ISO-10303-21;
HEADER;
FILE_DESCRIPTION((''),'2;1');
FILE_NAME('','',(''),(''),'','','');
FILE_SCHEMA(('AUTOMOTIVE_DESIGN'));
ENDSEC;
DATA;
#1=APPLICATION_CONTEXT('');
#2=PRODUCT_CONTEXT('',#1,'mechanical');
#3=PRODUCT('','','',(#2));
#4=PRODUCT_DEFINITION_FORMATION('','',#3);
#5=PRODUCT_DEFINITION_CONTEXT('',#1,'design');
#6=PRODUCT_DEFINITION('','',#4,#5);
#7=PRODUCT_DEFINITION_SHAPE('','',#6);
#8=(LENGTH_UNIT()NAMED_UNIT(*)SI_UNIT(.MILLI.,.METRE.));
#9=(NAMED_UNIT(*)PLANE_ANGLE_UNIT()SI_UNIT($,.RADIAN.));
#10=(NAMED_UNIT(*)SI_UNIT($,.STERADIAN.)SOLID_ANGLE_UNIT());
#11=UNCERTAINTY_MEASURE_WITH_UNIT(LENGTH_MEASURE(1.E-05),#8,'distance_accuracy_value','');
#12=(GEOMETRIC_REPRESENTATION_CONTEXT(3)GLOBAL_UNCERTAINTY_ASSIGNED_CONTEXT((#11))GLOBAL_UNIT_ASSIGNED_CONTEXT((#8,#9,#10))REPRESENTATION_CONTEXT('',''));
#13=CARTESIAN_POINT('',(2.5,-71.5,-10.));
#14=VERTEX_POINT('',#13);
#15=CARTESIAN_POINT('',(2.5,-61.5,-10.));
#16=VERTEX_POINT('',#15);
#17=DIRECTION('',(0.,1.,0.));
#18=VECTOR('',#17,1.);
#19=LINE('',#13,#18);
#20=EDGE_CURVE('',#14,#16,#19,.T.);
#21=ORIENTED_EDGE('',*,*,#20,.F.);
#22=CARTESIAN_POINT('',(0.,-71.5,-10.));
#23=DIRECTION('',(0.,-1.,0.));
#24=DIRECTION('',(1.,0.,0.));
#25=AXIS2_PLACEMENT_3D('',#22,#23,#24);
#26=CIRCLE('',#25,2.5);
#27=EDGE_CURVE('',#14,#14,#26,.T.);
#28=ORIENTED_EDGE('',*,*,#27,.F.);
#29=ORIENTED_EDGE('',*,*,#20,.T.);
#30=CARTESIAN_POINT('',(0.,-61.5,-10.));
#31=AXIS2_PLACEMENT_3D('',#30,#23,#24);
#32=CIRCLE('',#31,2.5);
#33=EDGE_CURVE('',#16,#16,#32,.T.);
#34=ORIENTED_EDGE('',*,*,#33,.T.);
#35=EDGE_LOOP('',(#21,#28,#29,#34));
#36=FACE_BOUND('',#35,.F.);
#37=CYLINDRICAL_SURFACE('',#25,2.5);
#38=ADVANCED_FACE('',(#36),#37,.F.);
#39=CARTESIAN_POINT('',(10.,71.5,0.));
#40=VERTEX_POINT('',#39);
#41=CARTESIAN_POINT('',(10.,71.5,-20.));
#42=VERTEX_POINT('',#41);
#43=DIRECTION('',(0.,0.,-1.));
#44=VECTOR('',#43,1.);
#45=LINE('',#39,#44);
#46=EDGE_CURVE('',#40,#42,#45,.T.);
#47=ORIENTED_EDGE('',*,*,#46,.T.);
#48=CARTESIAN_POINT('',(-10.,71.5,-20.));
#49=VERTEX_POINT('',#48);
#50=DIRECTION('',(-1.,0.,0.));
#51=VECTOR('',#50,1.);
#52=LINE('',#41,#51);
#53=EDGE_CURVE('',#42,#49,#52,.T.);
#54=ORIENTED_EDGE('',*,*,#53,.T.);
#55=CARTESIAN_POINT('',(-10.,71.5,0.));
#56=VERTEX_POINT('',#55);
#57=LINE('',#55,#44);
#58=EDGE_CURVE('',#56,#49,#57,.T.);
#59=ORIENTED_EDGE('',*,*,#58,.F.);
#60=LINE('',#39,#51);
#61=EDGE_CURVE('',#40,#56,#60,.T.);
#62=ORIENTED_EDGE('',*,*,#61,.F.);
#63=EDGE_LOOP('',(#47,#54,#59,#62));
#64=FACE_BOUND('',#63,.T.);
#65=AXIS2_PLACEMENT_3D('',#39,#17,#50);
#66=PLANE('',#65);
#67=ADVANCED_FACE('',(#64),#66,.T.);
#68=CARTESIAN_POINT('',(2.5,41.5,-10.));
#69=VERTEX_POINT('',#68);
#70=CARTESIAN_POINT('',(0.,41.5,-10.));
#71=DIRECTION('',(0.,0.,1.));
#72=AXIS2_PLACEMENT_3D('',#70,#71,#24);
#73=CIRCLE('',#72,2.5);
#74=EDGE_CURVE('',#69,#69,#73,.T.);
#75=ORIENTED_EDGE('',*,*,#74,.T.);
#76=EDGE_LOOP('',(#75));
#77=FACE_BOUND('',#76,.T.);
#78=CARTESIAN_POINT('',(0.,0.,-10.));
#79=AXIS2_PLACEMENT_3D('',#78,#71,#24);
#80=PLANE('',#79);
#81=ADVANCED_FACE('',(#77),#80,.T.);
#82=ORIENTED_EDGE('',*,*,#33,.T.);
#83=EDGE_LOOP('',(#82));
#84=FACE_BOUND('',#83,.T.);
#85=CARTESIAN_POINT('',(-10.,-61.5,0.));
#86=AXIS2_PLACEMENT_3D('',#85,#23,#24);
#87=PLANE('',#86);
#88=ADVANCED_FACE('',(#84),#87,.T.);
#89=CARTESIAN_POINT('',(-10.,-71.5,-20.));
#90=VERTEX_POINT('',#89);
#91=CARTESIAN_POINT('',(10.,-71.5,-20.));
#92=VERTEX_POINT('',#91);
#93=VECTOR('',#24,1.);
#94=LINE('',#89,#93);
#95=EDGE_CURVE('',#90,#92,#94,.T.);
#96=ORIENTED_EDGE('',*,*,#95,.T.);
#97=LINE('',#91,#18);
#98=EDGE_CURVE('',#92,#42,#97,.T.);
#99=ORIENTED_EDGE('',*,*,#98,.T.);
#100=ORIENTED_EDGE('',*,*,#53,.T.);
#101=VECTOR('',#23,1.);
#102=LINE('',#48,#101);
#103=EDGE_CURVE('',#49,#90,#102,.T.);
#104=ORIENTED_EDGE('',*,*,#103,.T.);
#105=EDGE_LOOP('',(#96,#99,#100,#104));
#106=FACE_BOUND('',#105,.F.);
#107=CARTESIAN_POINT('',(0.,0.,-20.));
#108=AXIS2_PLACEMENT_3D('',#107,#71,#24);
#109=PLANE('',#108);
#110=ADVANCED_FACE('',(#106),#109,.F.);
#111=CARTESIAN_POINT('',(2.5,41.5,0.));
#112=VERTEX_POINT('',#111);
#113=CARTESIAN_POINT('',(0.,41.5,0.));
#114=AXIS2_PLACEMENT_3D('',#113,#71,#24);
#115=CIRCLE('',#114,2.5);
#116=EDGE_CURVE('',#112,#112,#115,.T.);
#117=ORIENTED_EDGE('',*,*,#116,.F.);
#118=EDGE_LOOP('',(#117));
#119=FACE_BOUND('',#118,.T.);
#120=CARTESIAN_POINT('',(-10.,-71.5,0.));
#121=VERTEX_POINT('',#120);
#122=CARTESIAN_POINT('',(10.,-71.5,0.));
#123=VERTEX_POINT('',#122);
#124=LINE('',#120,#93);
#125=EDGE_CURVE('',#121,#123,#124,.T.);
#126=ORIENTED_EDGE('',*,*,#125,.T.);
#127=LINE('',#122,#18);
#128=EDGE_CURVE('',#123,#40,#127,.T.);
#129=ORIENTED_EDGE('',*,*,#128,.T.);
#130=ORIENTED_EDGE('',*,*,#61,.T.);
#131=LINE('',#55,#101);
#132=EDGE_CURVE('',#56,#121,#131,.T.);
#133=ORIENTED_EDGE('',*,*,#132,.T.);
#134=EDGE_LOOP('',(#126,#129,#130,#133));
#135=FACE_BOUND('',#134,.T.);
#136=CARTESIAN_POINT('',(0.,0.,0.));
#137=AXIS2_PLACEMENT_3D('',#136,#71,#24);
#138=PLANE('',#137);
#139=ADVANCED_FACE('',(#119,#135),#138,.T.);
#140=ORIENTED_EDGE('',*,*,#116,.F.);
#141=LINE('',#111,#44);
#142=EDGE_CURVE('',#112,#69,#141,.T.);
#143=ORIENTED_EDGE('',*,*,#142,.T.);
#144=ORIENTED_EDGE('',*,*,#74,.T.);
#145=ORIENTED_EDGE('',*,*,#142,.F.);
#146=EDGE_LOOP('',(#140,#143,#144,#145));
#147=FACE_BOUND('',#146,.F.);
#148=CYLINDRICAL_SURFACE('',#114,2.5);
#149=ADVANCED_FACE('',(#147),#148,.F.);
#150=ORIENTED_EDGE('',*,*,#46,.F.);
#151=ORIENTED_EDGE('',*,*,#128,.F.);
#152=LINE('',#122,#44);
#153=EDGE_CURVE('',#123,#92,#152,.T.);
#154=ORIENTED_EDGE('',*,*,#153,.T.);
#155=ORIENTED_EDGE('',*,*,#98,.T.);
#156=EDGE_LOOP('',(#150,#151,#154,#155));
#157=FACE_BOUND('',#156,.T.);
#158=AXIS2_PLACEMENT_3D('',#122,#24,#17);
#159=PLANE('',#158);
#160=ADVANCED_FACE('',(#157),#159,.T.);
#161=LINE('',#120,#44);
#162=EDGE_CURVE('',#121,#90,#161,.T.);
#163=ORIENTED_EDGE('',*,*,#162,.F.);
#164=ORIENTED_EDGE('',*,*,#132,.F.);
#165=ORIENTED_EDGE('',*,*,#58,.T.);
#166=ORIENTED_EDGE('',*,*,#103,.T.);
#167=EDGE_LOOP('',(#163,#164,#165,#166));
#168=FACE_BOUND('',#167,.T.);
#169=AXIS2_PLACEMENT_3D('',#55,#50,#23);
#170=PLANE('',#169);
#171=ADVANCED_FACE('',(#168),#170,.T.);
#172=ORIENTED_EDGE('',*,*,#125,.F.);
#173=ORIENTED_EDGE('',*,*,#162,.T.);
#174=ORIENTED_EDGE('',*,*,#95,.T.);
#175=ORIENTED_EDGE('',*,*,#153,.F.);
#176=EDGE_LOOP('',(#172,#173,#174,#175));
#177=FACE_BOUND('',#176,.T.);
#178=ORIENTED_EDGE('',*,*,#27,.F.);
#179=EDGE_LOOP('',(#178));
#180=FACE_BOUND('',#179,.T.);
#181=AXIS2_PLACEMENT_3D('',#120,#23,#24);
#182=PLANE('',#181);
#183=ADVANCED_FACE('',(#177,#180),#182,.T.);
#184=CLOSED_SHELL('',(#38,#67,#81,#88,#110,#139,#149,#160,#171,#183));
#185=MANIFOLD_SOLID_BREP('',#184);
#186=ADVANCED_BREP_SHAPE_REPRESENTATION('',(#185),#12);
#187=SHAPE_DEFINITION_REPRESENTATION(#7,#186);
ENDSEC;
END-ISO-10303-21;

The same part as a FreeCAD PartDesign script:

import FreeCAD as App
import Part
import Sketcher

V = App.Vector


def add_polygon(sketch, points):
    """Adds a closed chain of lines whose ends are joined by coincident constraints."""
    first, n = sketch.GeometryCount, len(points)
    for a, b in zip(points, points[1:] + points[:1]):
        sketch.addGeometry(Part.LineSegment(App.Vector(*a, 0), App.Vector(*b, 0)), False)
    for i in range(n):
        sketch.addConstraint(Sketcher.Constraint("Coincident", first + i, 2, first + (i + 1) % n, 1))

doc = App.newDocument("Part")
body = doc.addObject("PartDesign::Body", "Body")

sketch1 = body.newObject("Sketcher::SketchObject", "Sketch")
sketch1.AttachmentSupport = (doc.getObject("XY_Plane"), [""])
sketch1.MapMode = "FlatFace"
add_polygon(sketch1, [(-10, 72), (-10, -72), (10, -72), (10, 72)])
sketch1.addConstraint([
    Sketcher.Constraint("Vertical", 0),
    Sketcher.Constraint("Horizontal", 1),
    Sketcher.Constraint("Vertical", 2),
    Sketcher.Constraint("Horizontal", 3),
    Sketcher.Constraint("Symmetric", 0, 2, 2, 2, -1, 1),
    Sketcher.Constraint("DistanceX", 1, 1, 1, 2, 20.0),
    Sketcher.Constraint("DistanceY", 0, 2, 0, 1, 143.0),
])
pad1 = body.newObject("PartDesign::Pad", "Pad")
pad1.Profile = sketch1
pad1.Length = 20
pad1.Reversed = True

sketch2 = body.newObject("Sketcher::SketchObject", "Sketch001")
sketch2.AttachmentSupport = (doc.getObject("XY_Plane"), [""])
sketch2.MapMode = "FlatFace"
sketch2.addGeometry(Part.Circle(V(0, 41.5, 0), V(0, 0, 1), 2.5), False)
sketch2.addConstraint([
    Sketcher.Constraint("PointOnObject", 0, 3, -2),
    Sketcher.Constraint("Diameter", 0, 5.0),
    Sketcher.Constraint("DistanceY", -1, 1, 0, 3, 41.5),
])
pocket1 = body.newObject("PartDesign::Pocket", "Pocket")
pocket1.Profile = sketch2
pocket1.Length = 10

sketch3 = body.newObject("Sketcher::SketchObject", "Sketch002")
sketch3.AttachmentSupport = (doc.getObject("XZ_Plane"), [""])
sketch3.MapMode = "FlatFace"
sketch3.AttachmentOffset = App.Placement(V(0, 0, 71.5), App.Rotation())
sketch3.addGeometry(Part.Circle(V(0, -10, 0), V(0, 0, 1), 2.5), False)
sketch3.addConstraint([
    Sketcher.Constraint("PointOnObject", 0, 3, -2),
    Sketcher.Constraint("Diameter", 0, 5.0),
    Sketcher.Constraint("DistanceY", 0, 3, -1, 1, 10.0),
])
pocket2 = body.newObject("PartDesign::Pocket", "Pocket001")
pocket2.Profile = sketch3
pocket2.Length = 10

doc.recompute()
